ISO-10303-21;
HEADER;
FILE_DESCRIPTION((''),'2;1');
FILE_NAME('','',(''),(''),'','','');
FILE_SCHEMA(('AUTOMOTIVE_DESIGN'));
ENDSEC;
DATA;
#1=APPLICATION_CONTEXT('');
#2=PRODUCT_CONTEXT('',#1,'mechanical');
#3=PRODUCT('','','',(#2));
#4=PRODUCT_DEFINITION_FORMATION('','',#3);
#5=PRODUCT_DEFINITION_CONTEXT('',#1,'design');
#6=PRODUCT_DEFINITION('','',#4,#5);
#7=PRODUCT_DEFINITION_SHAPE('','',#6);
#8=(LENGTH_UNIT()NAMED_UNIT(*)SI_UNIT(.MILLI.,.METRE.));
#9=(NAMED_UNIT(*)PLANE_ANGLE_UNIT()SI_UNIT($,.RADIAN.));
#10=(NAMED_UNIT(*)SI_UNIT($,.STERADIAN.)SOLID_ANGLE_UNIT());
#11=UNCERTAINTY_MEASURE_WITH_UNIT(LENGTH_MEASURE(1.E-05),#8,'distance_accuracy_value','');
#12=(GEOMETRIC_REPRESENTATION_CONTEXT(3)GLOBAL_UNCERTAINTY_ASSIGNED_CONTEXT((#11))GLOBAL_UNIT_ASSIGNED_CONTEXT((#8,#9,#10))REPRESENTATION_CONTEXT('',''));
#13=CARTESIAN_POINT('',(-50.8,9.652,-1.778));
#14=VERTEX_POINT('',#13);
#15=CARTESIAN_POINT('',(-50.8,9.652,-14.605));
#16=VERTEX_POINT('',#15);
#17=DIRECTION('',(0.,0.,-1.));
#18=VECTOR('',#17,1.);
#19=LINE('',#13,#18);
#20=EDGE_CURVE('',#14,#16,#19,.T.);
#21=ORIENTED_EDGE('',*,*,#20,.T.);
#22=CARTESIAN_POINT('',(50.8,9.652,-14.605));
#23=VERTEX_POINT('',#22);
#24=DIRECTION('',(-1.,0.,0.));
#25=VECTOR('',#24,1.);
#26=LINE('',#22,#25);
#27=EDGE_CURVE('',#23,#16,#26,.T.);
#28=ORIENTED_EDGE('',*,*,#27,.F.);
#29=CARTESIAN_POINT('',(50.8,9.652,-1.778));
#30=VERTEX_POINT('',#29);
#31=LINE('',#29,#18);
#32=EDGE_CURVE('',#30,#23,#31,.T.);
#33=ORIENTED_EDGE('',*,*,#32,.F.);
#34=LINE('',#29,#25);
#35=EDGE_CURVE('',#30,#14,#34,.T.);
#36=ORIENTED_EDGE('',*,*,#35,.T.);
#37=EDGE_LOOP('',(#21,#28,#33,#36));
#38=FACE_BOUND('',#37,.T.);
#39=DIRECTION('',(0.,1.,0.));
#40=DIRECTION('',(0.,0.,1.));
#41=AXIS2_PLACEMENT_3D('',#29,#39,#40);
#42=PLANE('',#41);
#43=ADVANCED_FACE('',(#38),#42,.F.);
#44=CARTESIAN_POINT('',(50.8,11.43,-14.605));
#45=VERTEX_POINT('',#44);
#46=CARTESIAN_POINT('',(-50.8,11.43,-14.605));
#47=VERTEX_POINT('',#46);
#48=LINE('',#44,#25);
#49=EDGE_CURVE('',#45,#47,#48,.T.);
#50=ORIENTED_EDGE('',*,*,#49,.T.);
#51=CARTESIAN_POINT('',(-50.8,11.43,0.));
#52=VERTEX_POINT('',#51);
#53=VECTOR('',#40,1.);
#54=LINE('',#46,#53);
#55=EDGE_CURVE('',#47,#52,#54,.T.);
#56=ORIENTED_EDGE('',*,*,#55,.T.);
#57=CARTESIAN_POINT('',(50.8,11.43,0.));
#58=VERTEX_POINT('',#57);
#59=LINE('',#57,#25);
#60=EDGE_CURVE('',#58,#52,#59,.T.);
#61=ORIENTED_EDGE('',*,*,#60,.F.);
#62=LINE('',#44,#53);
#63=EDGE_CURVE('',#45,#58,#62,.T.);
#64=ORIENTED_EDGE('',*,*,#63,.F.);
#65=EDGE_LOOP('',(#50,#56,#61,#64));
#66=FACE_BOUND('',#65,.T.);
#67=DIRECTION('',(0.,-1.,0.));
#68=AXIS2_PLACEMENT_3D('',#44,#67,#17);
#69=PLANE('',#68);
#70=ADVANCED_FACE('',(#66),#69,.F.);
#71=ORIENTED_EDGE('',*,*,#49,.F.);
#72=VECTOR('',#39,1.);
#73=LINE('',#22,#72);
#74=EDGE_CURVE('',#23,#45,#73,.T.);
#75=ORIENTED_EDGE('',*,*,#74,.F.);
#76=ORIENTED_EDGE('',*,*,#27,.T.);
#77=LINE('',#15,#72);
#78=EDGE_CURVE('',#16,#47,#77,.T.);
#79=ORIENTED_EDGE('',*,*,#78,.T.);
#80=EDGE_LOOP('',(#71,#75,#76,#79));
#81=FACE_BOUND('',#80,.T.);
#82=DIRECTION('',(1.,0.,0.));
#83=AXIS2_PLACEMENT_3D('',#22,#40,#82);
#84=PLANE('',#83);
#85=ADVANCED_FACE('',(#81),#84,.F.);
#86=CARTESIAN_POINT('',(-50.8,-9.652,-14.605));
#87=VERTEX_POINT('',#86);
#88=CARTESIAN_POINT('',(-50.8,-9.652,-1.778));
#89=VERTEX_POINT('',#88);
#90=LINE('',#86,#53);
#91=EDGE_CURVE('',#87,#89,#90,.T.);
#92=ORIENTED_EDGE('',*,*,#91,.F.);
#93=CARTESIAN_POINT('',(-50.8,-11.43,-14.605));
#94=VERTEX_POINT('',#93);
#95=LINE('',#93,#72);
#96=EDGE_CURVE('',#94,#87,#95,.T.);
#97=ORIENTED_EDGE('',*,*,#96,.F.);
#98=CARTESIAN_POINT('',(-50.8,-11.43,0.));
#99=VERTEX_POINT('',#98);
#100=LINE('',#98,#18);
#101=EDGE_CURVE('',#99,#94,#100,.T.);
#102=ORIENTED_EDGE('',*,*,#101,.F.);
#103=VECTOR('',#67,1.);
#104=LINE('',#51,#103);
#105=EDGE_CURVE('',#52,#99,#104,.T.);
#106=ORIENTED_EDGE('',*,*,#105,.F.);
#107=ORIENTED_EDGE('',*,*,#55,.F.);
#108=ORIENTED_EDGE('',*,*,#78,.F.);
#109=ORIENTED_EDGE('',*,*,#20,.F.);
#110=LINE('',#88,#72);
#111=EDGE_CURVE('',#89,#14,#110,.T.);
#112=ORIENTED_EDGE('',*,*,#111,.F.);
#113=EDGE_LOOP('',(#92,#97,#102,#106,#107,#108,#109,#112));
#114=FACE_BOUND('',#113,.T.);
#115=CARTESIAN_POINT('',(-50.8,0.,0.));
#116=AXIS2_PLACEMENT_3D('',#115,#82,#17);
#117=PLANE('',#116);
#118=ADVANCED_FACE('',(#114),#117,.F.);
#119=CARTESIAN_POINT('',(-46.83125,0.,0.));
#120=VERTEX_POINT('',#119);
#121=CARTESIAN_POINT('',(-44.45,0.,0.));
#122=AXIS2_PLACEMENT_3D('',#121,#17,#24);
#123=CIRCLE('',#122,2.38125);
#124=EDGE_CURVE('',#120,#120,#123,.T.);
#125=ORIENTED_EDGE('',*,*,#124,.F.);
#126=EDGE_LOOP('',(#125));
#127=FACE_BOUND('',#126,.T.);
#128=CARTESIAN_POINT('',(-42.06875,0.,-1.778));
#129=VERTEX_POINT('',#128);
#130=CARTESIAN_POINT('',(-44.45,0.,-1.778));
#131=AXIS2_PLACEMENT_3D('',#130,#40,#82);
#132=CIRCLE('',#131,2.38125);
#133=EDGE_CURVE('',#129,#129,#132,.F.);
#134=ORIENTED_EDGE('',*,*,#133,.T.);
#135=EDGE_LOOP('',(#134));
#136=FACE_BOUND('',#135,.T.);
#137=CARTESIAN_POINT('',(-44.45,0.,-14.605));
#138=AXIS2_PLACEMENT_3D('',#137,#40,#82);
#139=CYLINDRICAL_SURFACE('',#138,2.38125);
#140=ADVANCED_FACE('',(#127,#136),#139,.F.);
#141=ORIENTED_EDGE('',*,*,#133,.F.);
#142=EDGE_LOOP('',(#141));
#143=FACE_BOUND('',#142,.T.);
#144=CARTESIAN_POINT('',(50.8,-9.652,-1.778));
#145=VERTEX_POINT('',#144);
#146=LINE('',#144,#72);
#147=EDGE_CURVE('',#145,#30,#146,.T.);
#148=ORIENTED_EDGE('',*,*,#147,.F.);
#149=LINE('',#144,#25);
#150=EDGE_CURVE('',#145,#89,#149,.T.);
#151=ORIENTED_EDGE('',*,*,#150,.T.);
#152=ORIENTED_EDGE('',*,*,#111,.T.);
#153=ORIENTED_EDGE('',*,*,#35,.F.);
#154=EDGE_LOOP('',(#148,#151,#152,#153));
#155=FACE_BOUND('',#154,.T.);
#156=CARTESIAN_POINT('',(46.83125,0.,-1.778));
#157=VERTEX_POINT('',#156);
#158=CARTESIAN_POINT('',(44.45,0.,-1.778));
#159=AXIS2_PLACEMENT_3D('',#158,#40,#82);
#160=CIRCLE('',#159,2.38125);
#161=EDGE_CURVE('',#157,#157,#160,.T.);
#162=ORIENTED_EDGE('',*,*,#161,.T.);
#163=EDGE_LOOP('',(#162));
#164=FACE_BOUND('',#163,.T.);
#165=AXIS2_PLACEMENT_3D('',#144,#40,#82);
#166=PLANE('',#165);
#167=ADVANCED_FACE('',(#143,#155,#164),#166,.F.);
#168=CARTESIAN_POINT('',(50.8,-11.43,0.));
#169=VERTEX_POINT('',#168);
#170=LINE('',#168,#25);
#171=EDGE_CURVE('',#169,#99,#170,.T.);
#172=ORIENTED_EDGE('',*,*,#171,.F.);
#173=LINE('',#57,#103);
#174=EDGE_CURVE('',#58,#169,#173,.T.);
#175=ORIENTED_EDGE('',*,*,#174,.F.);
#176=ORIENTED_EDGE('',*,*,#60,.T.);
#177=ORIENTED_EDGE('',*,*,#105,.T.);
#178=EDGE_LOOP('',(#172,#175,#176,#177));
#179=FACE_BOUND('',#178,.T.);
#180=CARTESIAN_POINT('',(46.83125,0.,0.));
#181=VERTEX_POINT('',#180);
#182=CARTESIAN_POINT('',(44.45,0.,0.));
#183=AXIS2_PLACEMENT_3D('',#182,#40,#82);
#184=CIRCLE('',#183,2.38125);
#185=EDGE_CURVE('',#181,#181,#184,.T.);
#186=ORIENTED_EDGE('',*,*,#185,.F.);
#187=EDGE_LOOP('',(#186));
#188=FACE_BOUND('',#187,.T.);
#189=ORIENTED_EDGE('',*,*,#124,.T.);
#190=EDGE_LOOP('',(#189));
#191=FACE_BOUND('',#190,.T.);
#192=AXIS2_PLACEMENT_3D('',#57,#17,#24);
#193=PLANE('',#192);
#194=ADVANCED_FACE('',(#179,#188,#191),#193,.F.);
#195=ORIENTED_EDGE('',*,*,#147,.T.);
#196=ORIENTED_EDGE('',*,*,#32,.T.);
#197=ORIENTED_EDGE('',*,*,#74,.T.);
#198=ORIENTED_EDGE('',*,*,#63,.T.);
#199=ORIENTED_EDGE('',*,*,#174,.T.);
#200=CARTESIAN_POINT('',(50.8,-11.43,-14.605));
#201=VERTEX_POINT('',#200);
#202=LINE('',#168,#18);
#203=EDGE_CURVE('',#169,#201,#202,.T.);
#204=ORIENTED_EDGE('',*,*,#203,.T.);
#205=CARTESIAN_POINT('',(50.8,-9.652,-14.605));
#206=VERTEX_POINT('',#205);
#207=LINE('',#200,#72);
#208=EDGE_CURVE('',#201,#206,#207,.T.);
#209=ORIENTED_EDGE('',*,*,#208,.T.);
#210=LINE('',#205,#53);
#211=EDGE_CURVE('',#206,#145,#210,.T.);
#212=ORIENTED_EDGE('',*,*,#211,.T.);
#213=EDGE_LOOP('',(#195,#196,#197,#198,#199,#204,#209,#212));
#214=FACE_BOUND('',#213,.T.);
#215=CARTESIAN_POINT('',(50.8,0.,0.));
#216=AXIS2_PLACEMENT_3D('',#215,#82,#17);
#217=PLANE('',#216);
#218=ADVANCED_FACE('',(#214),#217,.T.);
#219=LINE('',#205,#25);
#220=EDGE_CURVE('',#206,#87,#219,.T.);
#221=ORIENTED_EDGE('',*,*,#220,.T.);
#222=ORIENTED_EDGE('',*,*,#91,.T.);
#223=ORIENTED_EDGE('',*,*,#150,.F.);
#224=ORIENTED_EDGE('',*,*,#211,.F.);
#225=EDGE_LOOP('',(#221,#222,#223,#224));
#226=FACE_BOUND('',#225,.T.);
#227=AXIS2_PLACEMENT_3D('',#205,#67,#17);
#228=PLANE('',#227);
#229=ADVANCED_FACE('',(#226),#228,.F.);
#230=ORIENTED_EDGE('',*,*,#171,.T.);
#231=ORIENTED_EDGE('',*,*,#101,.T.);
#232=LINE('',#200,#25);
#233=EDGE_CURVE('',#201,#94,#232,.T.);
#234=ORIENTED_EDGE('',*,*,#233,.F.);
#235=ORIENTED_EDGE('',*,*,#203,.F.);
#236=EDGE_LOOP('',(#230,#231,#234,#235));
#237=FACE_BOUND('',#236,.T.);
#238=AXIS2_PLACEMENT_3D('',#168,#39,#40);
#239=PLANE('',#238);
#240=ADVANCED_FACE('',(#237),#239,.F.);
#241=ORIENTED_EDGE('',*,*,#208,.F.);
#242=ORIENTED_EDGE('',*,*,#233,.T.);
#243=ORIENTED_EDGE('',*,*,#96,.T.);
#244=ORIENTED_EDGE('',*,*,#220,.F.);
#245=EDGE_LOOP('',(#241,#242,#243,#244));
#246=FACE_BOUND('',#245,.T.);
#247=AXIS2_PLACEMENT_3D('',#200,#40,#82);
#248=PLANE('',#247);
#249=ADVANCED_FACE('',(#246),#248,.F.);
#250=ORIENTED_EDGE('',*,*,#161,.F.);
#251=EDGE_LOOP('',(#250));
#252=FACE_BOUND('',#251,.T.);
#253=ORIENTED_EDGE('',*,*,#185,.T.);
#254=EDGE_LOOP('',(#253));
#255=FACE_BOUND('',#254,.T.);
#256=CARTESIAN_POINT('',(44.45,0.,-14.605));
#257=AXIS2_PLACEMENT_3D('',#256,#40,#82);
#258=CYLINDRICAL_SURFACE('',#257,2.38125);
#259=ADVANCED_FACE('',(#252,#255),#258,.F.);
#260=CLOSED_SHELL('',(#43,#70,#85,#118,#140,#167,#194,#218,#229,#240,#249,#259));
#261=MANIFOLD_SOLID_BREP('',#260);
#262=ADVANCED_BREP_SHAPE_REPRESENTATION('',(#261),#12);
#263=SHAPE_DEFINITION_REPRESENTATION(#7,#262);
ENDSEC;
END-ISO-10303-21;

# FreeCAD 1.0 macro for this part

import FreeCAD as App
import Part
import Sketcher
from FreeCAD import Vector
Q = App.Units.Quantity

doc = App.newDocument("Part")
params = doc.addObject("Spreadsheet::Sheet", "Params")
for row, (alias, value) in enumerate([
    ("sketch1_width", "0.9 in"),
    ("sketch1_width2", "0.07 in"),
    ("sketch1_height", "0.575 in"),
    ("sketch1_height2", "0.505 in"),
    ("pad1_length", "4 in"),
    ("sketch2_diameter", "0.1875 in"),
], start=1):
    params.set(f"A{row}", alias)
    params.set(f"B{row}", "=" + value)
    params.setAlias(f"B{row}", alias)

body = doc.addObject("PartDesign::Body", "Body")

# Sketch on YZ plane
sketch1 = doc.addObject("Sketcher::SketchObject", "Sketch")
body.addObject(sketch1)
sketch1.AttachmentSupport = (doc.YZ_Plane, [""])
sketch1.MapMode = "FlatFace"
sketch1.addGeometry([
    Part.LineSegment(Vector(11.4, 0, 0), Vector(-11.4, 0, 0)),  # 0
    Part.LineSegment(Vector(-11.4, 0, 0), Vector(-11.4, -14.6, 0)),  # 1
    Part.LineSegment(Vector(-11.4, -14.6, 0), Vector(-9.7, -14.6, 0)),  # 2
    Part.LineSegment(Vector(-9.7, -14.6, 0), Vector(-9.7, -1.8, 0)),  # 3
    Part.LineSegment(Vector(-9.7, -1.8, 0), Vector(9.7, -1.8, 0)),  # 4
    Part.LineSegment(Vector(9.7, -1.8, 0), Vector(9.7, -14.6, 0)),  # 5
    Part.LineSegment(Vector(9.7, -14.6, 0), Vector(11.4, -14.6, 0)),  # 6
    Part.LineSegment(Vector(11.4, -14.6, 0), Vector(11.4, 0, 0)),  # 7
], False)
sketch1.addConstraint([
    Sketcher.Constraint("Coincident", 0, 2, 1, 1),
    Sketcher.Constraint("Coincident", 1, 2, 2, 1),
    Sketcher.Constraint("Coincident", 2, 2, 3, 1),
    Sketcher.Constraint("Coincident", 3, 2, 4, 1),
    Sketcher.Constraint("Coincident", 4, 2, 5, 1),
    Sketcher.Constraint("Coincident", 5, 2, 6, 1),
    Sketcher.Constraint("Coincident", 6, 2, 7, 1),
    Sketcher.Constraint("Coincident", 7, 2, 0, 1),
    Sketcher.Constraint("Horizontal", 0),
    Sketcher.Constraint("Vertical", 1),
    Sketcher.Constraint("Horizontal", 2),
    Sketcher.Constraint("Vertical", 3),
    Sketcher.Constraint("Horizontal", 4),
    Sketcher.Constraint("Vertical", 5),
    Sketcher.Constraint("Horizontal", 6),
    Sketcher.Constraint("Vertical", 7),
    Sketcher.Constraint("Symmetric", 0, 2, 7, 2, -1, 1),
    Sketcher.Constraint("Symmetric", 2, 2, 5, 2, -2),
    Sketcher.Constraint("DistanceX", 0, 2, 0, 1, Q("0.9 in")),
    Sketcher.Constraint("DistanceX", 2, 1, 2, 2, Q("0.07 in")),
    Sketcher.Constraint("DistanceY", 1, 2, 1, 1, Q("0.575 in")),
    Sketcher.Constraint("DistanceY", 3, 1, 3, 2, Q("0.505 in")),
])
sketch1.setExpression("Constraints[18]", "Params.sketch1_width")
sketch1.setExpression("Constraints[19]", "Params.sketch1_width2")
sketch1.setExpression("Constraints[20]", "Params.sketch1_height")
sketch1.setExpression("Constraints[21]", "Params.sketch1_height2")
pad1 = doc.addObject("PartDesign::Pad", "Pad")
body.addObject(pad1)
pad1.Profile = sketch1
pad1.setExpression("Length", "Params.pad1_length")
pad1.Midplane = True

# Sketch on XY plane
sketch2 = doc.addObject("Sketcher::SketchObject", "Sketch001")
body.addObject(sketch2)
sketch2.AttachmentSupport = (doc.XY_Plane, [""])
sketch2.MapMode = "FlatFace"
sketch2.addGeometry(Part.Circle(Vector(44.5, 0, 0), Vector(0, 0, 1), 2.4), False)
sketch2.addConstraint([
    Sketcher.Constraint("PointOnObject", 0, 3, -1),
    Sketcher.Constraint("Diameter", 0, Q("0.1875 in")),
    Sketcher.Constraint("DistanceX", -1, 1, 0, 3, Q("1.75 in")),
])
sketch2.setExpression("Constraints[1]", "Params.sketch2_diameter")
pocket1 = doc.addObject("PartDesign::Pocket", "Pocket")
body.addObject(pocket1)
pocket1.Profile = sketch2
pocket1.Type = "ThroughAll"
doc.recompute()

mirrored = doc.addObject("PartDesign::Mirrored", "Mirrored")
body.addObject(mirrored)
mirrored.Originals = [pocket1]
mirrored.MirrorPlane = (doc.YZ_Plane, [""])
body.Tip = mirrored

doc.recompute()
